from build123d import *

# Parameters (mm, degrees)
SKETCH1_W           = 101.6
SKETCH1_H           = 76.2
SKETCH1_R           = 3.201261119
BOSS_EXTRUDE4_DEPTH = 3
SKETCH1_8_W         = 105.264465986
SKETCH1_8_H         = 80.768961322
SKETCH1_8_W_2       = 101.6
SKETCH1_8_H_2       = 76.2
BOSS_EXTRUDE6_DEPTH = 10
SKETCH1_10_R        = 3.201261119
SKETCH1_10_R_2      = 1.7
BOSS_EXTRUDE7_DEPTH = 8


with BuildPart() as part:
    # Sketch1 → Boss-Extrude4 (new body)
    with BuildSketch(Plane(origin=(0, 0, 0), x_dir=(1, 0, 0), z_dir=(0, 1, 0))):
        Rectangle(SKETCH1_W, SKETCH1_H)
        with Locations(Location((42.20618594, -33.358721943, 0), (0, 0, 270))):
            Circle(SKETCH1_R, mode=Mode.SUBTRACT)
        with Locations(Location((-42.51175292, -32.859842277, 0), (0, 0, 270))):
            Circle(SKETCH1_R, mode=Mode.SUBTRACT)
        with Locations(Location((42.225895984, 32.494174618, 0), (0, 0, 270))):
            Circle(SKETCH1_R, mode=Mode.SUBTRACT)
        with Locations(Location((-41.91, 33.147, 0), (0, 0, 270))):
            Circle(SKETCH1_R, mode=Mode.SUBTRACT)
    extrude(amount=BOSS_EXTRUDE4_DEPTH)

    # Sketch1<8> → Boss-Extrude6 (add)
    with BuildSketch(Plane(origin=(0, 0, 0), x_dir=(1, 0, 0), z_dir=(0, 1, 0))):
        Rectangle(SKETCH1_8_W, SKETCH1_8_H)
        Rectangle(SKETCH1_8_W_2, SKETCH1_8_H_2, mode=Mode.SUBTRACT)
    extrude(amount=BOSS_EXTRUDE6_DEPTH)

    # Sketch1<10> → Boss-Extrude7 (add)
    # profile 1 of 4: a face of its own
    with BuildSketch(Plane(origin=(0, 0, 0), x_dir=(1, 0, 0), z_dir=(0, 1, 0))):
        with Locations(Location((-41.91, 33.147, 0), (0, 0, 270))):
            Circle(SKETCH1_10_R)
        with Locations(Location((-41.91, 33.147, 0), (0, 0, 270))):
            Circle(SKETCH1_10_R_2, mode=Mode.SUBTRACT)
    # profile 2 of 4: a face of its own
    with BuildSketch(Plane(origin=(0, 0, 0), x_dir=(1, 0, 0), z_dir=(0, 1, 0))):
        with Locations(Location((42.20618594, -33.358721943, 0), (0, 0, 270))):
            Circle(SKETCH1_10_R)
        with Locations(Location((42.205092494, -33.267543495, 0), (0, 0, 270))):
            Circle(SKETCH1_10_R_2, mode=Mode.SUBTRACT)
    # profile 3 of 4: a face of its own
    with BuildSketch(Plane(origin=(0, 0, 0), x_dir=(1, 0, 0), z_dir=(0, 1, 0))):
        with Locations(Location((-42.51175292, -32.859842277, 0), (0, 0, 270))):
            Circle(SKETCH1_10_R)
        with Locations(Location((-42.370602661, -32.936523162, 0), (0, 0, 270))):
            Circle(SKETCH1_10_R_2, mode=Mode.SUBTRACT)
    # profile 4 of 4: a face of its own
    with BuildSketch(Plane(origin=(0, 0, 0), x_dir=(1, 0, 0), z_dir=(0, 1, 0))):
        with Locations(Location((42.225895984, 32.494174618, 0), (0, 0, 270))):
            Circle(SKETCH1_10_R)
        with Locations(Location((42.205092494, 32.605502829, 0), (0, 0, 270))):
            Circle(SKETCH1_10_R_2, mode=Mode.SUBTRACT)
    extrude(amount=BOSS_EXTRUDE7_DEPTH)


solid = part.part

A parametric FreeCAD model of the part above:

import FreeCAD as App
import Part
import Sketcher

doc = App.newDocument("Part")
body = doc.addObject("PartDesign::Body", "Body")

sketch1 = body.newObject("Sketcher::SketchObject", "Sketch")
sketch1.AttachmentSupport = (doc.getObject("XZ_Plane"), [""])
sketch1.MapMode = "FlatFace"
sketch1.addGeometry([
    Part.LineSegment(App.Vector(-50.8, -38.1, 0), App.Vector(-50.8, 38.1, 0)),
    Part.LineSegment(App.Vector(-50.8, 38.1, 0), App.Vector(50.8, 38.1, 0)),
    Part.LineSegment(App.Vector(50.8, 38.1, 0), App.Vector(50.8, -38.1, 0)),
    Part.LineSegment(App.Vector(50.8, -38.1, 0), App.Vector(-50.8, -38.1, 0)),
    Part.Circle(App.Vector(-42.5, 32.9, 0), App.Vector(0, 0, 1), 3.2),
    Part.Circle(App.Vector(42.2, 33.4, 0), App.Vector(0, 0, 1), 3.2),
    Part.Circle(App.Vector(-41.9, -33.1, 0), App.Vector(0, 0, 1), 3.2),
    Part.Circle(App.Vector(42.2, -32.5, 0), App.Vector(0, 0, 1), 3.2),
], False)
sketch1.addConstraint([
    Sketcher.Constraint("Coincident", 0, 2, 1, 1),
    Sketcher.Constraint("Coincident", 1, 2, 2, 1),
    Sketcher.Constraint("Coincident", 2, 2, 3, 1),
    Sketcher.Constraint("Coincident", 3, 2, 0, 1),
    Sketcher.Constraint("Vertical", 0),
    Sketcher.Constraint("Horizontal", 1),
    Sketcher.Constraint("Vertical", 2),
    Sketcher.Constraint("Horizontal", 3),
    Sketcher.Constraint("Equal", 4, 5),
    Sketcher.Constraint("Equal", 5, 6),
    Sketcher.Constraint("Equal", 6, 7),
    Sketcher.Constraint("Symmetric", 0, 2, 2, 2, -1, 1),
    Sketcher.Constraint("DistanceX", 1, 1, 1, 2, 101.6),
    Sketcher.Constraint("DistanceY", 0, 1, 0, 2, 76.2),
    Sketcher.Constraint("DistanceX", 6, 3, -1, 1, 41.91),
    Sketcher.Constraint("Diameter", 4, 6.402522),
    Sketcher.Constraint("DistanceY", 6, 3, -1, 1, 33.147),
    Sketcher.Constraint("DistanceY", -1, 1, 5, 3, 33.358722),
    Sketcher.Constraint("DistanceX", 4, 3, 5, 3, 84.717939),
    Sketcher.Constraint("DistanceY", 4, 3, 5, 3, 0.49888),
    Sketcher.Constraint("DistanceX", 5, 3, 7, 3, 0.01971),
    Sketcher.Constraint("DistanceX", 4, 3, -1, 1, 42.511753),
    Sketcher.Constraint("DistanceY", 7, 3, -1, 1, 32.494175),
])
pad1 = body.newObject("PartDesign::Pad", "Pad")
pad1.Profile = sketch1
pad1.Length = 3
pad1.Reversed = True

sketch2 = body.newObject("Sketcher::SketchObject", "Sketch001")
sketch2.AttachmentSupport = (doc.getObject("XZ_Plane"), [""])
sketch2.MapMode = "FlatFace"
sketch2.addGeometry([
    Part.LineSegment(App.Vector(-53, -40, 0), App.Vector(-53, 40, 0)),
    Part.LineSegment(App.Vector(-53, 40, 0), App.Vector(53, 40, 0)),
    Part.LineSegment(App.Vector(53, 40, 0), App.Vector(53, -40, 0)),
    Part.LineSegment(App.Vector(53, -40, 0), App.Vector(-53, -40, 0)),
    Part.LineSegment(App.Vector(51, 38, 0), App.Vector(-51, 38, 0)),
    Part.LineSegment(App.Vector(-51, 38, 0), App.Vector(-51, -38, 0)),
    Part.LineSegment(App.Vector(-51, -38, 0), App.Vector(51, -38, 0)),
    Part.LineSegment(App.Vector(51, -38, 0), App.Vector(51, 38, 0)),
], False)
sketch2.addConstraint([
    Sketcher.Constraint("Coincident", 0, 2, 1, 1),
    Sketcher.Constraint("Coincident", 1, 2, 2, 1),
    Sketcher.Constraint("Coincident", 2, 2, 3, 1),
    Sketcher.Constraint("Coincident", 3, 2, 0, 1),
    Sketcher.Constraint("Coincident", 4, 2, 5, 1),
    Sketcher.Constraint("Coincident", 5, 2, 6, 1),
    Sketcher.Constraint("Coincident", 6, 2, 7, 1),
    Sketcher.Constraint("Coincident", 7, 2, 4, 1),
    Sketcher.Constraint("Vertical", 0),
    Sketcher.Constraint("Horizontal", 1),
    Sketcher.Constraint("Vertical", 2),
    Sketcher.Constraint("Horizontal", 3),
    Sketcher.Constraint("Horizontal", 4),
    Sketcher.Constraint("Vertical", 5),
    Sketcher.Constraint("Horizontal", 6),
    Sketcher.Constraint("Vertical", 7),
    Sketcher.Constraint("Symmetric", 0, 2, 2, 2, -1, 1),
    Sketcher.Constraint("Symmetric", 4, 2, 6, 2, -1, 1),
    Sketcher.Constraint("DistanceX", 4, 2, 4, 1, 101.6),
    Sketcher.Constraint("DistanceY", 5, 2, 5, 1, 76.2),
    Sketcher.Constraint("DistanceY", 0, 1, 0, 2, 80.768961),
    Sketcher.Constraint("DistanceX", 1, 1, 1, 2, 105.264466),
])
pad2 = body.newObject("PartDesign::Pad", "Pad001")
pad2.Profile = sketch2
pad2.Length = 10
pad2.Reversed = True

sketch3 = body.newObject("Sketcher::SketchObject", "Sketch002")
sketch3.AttachmentSupport = (doc.getObject("XZ_Plane"), [""])
sketch3.MapMode = "FlatFace"
sketch3.addGeometry([
    Part.Circle(App.Vector(-41.9, -33.1, 0), App.Vector(0, 0, 1), 3.2),
    Part.Circle(App.Vector(-41.9, -33.1, 0), App.Vector(0, 0, 1), 1.7),
    Part.Circle(App.Vector(42.2, 33.4, 0), App.Vector(0, 0, 1), 3.2),
    Part.Circle(App.Vector(42.2, 33.3, 0), App.Vector(0, 0, 1), 1.7),
    Part.Circle(App.Vector(-42.5, 32.9, 0), App.Vector(0, 0, 1), 3.2),
    Part.Circle(App.Vector(-42.4, 32.9, 0), App.Vector(0, 0, 1), 1.7),
    Part.Circle(App.Vector(42.2, -32.5, 0), App.Vector(0, 0, 1), 3.2),
    Part.Circle(App.Vector(42.2, -32.6, 0), App.Vector(0, 0, 1), 1.7),
], False)
sketch3.addConstraint([
    Sketcher.Constraint("Coincident", 1, 3, 0, 3),
    Sketcher.Constraint("Equal", 0, 2),
    Sketcher.Constraint("Equal", 1, 3),
    Sketcher.Constraint("Equal", 2, 4),
    Sketcher.Constraint("Equal", 3, 5),
    Sketcher.Constraint("Equal", 4, 6),
    Sketcher.Constraint("Equal", 5, 7),
    Sketcher.Constraint("Vertical", 3, 3, 7, 3),
    Sketcher.Constraint("Diameter", 1, 3.4),
    Sketcher.Constraint("DistanceX", 0, 3, -1, 1, 41.91),
    Sketcher.Constraint("Diameter", 0, 6.402522),
    Sketcher.Constraint("DistanceY", 0, 3, -1, 1, 33.147),
    Sketcher.Constraint("DistanceY", 4, 3, 3, 3, 0.407701),
    Sketcher.Constraint("DistanceY", 5, 3, 2, 3, 0.422199),
    Sketcher.Constraint("DistanceX", 5, 3, 6, 3, 84.596499),
    Sketcher.Constraint("DistanceY", -1, 1, 2, 3, 33.358722),
    Sketcher.Constraint("DistanceY", 3, 3, 2, 3, 0.091178),
    Sketcher.Constraint("DistanceX", 4, 3, 2, 3, 84.717939),
    Sketcher.Constraint("DistanceX", 4, 3, 5, 3, 0.14115),
    Sketcher.Constraint("DistanceY", 6, 3, 3, 3, 65.761718),
    Sketcher.Constraint("DistanceY", 7, 3, 6, 3, 0.111328),
    Sketcher.Constraint("DistanceX", -1, 1, 2, 3, 42.206186),
    Sketcher.Constraint("DistanceX", -1, 1, 3, 3, 42.205092),
])
pad3 = body.newObject("PartDesign::Pad", "Pad002")
pad3.Profile = sketch3
pad3.Length = 8
pad3.Reversed = True

doc.recompute()
